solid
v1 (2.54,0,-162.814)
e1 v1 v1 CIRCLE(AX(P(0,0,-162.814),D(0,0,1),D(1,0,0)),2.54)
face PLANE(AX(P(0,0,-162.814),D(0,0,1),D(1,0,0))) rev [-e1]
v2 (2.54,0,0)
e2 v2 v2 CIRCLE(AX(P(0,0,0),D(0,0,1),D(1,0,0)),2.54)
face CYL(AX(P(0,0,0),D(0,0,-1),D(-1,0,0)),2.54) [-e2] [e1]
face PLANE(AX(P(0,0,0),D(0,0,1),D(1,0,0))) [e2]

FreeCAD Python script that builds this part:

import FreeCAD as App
import Part
import Sketcher

V = App.Vector
Q = App.Units.Quantity

doc = App.newDocument("Part")
params = doc.addObject("Spreadsheet::Sheet", "Params")
for row, (alias, value) in enumerate([
    ("sketch1_diameter", "0.2 in"),
    ("sketch2_height", "6.41 in"),
], start=1):
    params.set(f"A{row}", alias)
    params.set(f"B{row}", "=" + value)
    params.setAlias(f"B{row}", alias)

body = doc.addObject("PartDesign::Body", "Body")

sketch1 = doc.addObject("Sketcher::SketchObject", "Sketch")
body.addObject(sketch1)
sketch1.AttachmentSupport = (doc.XY_Plane, [""])
sketch1.MapMode = "FlatFace"
sketch1.addGeometry(Part.Circle(V(0, 0, 0), V(0, 0, 1), 2.5), False)
sketch1.addConstraint([
    Sketcher.Constraint("Coincident", 0, 3, -1, 1),
    Sketcher.Constraint("Diameter", 0, Q("0.2 in")),
])
sketch1.setExpression("Constraints[1]", "Params.sketch1_diameter")

sketch2 = doc.addObject("Sketcher::SketchObject", "Sketch001")
body.addObject(sketch2)
sketch2.AttachmentSupport = (doc.XZ_Plane, [""])
sketch2.MapMode = "FlatFace"
sketch2.addGeometry(Part.LineSegment(V(0, 0, 0), V(0, -163, 0)), False)
sketch2.addConstraint([
    Sketcher.Constraint("Vertical", 0),
    Sketcher.Constraint("Coincident", 0, 1, -1, 1),
    Sketcher.Constraint("DistanceY", 0, 2, 0, 1, Q("6.41 in")),
])
sketch2.setExpression("Constraints[2]", "Params.sketch2_height")
doc.recompute()

additivepipe = doc.addObject("PartDesign::AdditivePipe", "AdditivePipe")
body.addObject(additivepipe)
additivepipe.Profile = sketch1
additivepipe.Spine = (sketch2, ["Edge1"])

doc.recompute()
